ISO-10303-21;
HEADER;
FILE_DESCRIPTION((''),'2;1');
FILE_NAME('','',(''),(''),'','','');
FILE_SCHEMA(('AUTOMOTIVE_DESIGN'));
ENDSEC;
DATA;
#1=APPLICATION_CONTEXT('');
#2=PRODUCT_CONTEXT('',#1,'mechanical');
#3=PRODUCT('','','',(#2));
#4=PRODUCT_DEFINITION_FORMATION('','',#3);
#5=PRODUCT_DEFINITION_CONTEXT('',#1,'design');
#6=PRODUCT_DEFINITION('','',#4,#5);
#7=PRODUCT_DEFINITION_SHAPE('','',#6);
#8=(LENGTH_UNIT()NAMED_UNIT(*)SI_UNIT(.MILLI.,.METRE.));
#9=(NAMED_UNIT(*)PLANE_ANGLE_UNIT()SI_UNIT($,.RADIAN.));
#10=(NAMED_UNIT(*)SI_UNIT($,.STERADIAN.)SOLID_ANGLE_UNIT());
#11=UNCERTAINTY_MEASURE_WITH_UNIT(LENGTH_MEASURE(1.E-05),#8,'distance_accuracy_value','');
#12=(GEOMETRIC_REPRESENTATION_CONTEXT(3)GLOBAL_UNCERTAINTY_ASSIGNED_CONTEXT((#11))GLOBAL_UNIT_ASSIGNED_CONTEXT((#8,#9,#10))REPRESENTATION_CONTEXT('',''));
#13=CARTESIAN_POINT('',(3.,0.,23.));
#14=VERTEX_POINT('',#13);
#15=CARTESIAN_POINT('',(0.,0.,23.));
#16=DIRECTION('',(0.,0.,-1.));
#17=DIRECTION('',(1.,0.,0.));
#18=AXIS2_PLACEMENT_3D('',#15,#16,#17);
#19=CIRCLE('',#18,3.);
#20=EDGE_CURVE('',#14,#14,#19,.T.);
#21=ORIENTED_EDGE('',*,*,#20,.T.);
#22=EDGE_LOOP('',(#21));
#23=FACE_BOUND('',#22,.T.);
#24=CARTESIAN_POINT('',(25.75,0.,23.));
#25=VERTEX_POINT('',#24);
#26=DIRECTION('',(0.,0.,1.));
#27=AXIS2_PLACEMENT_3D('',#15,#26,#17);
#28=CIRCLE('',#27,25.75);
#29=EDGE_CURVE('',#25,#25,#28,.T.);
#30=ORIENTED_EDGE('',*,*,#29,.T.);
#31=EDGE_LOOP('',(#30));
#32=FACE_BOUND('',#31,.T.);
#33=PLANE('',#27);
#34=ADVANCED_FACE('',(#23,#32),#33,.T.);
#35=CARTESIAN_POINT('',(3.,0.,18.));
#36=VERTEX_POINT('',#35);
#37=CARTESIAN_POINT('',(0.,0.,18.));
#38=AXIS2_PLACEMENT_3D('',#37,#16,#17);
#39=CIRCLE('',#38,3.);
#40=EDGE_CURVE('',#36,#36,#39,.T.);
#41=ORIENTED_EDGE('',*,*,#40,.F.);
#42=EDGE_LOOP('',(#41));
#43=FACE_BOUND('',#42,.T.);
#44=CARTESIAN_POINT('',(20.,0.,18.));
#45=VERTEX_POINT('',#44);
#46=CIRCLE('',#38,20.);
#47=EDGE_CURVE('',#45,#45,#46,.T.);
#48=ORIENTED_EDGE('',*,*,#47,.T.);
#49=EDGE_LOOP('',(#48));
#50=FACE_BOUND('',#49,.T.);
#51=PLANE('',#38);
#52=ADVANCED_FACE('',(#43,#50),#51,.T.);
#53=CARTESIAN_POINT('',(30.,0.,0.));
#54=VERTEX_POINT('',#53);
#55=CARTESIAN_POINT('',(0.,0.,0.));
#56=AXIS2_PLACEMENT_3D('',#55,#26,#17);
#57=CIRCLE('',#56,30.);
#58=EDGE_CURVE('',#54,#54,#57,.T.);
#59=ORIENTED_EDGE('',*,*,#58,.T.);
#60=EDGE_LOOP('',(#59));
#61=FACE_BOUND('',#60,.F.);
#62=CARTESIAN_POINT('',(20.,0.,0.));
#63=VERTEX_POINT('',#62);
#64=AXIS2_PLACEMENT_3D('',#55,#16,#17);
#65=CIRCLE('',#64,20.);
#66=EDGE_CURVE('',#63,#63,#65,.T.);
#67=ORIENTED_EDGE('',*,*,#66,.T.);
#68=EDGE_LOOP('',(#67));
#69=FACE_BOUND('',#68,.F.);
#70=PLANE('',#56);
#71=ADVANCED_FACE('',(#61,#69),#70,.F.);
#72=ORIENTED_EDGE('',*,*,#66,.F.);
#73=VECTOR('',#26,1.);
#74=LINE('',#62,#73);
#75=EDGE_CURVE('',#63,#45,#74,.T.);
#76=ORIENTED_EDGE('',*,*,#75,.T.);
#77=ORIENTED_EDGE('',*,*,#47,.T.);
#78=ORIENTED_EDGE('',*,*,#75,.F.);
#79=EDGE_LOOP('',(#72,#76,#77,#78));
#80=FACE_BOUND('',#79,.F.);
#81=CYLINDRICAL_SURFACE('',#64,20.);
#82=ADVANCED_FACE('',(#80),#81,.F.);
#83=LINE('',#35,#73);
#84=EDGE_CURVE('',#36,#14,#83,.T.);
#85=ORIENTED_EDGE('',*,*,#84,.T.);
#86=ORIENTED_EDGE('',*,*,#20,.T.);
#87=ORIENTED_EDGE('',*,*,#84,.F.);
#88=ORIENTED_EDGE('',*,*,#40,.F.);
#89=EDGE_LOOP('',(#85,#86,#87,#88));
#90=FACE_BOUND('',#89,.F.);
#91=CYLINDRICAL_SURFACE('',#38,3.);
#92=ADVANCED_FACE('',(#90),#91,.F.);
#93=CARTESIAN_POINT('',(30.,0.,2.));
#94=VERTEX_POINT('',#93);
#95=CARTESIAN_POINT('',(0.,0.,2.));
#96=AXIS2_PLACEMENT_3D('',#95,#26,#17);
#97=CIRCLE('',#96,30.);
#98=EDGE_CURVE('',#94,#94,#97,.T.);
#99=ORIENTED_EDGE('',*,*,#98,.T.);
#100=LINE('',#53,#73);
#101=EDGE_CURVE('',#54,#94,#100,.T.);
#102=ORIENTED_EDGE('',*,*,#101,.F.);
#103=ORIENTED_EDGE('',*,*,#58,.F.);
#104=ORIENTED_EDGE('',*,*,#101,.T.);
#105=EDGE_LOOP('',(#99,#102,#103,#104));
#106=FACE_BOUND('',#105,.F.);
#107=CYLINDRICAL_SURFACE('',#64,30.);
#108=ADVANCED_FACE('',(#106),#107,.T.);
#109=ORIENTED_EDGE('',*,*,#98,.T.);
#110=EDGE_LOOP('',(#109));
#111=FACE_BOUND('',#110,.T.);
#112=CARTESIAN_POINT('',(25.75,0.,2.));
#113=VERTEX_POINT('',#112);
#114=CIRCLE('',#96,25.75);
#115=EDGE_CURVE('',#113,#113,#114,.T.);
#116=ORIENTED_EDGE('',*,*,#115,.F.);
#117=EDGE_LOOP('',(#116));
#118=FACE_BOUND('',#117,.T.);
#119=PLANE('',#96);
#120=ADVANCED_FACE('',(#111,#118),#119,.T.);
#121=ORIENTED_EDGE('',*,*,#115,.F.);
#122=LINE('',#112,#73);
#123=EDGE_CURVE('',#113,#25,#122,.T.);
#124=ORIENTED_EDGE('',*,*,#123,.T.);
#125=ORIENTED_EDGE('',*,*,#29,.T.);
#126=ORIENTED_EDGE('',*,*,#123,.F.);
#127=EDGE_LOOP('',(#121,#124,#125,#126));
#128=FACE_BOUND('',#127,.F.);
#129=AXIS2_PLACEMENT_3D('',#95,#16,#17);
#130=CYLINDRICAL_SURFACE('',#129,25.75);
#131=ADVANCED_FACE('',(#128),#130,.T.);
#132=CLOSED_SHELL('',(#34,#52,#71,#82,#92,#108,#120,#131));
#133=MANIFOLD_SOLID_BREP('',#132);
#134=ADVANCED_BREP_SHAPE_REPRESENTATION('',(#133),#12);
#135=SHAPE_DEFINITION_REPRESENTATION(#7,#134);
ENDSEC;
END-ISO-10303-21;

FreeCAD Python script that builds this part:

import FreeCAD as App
import Part
import Sketcher

V = App.Vector

doc = App.newDocument("Part")
params = doc.addObject("Spreadsheet::Sheet", "Params")
for row, (alias, value) in enumerate([
    ("sketch1_diameter", "60 mm"),
    ("pad1_length", "2 mm"),
    ("sketch2_diameter", "51.5 mm"),
    ("pad2_length", "21 mm"),
    ("sketch3_diameter", "40 mm"),
    ("pocket1_length", "18 mm"),
    ("sketch4_diameter", "6 mm"),
], start=1):
    params.set(f"A{row}", alias)
    params.set(f"B{row}", "=" + value)
    params.setAlias(f"B{row}", alias)

body = doc.addObject("PartDesign::Body", "Body")

# Sketch on XY plane
sketch1 = doc.addObject("Sketcher::SketchObject", "Sketch")
body.addObject(sketch1)
sketch1.AttachmentSupport = (doc.XY_Plane, [""])
sketch1.MapMode = "FlatFace"
sketch1.addGeometry(Part.Circle(V(0, 0, 0), V(0, 0, 1), 30), False)
sketch1.addConstraint([
    Sketcher.Constraint("Coincident", 0, 3, -1, 1),
    Sketcher.Constraint("Diameter", 0, 60.0),
])
sketch1.setExpression("Constraints[1]", "Params.sketch1_diameter")
pad1 = doc.addObject("PartDesign::Pad", "Pad")
body.addObject(pad1)
pad1.Profile = sketch1
pad1.setExpression("Length", "Params.pad1_length")

# Sketch on XY plane
sketch2 = doc.addObject("Sketcher::SketchObject", "Sketch001")
body.addObject(sketch2)
sketch2.AttachmentSupport = (doc.XY_Plane, [""])
sketch2.MapMode = "FlatFace"
sketch2.AttachmentOffset = App.Placement(V(0, 0, 2), App.Rotation())
sketch2.addGeometry(Part.Circle(V(0, 0, 0), V(0, 0, 1), 26), False)
sketch2.addConstraint([
    Sketcher.Constraint("Coincident", 0, 3, -1, 1),
    Sketcher.Constraint("Diameter", 0, 51.5),
])
sketch2.setExpression("Constraints[1]", "Params.sketch2_diameter")
pad2 = doc.addObject("PartDesign::Pad", "Pad001")
body.addObject(pad2)
pad2.Profile = sketch2
pad2.setExpression("Length", "Params.pad2_length")

# Sketch on XY plane
sketch3 = doc.addObject("Sketcher::SketchObject", "Sketch002")
body.addObject(sketch3)
sketch3.AttachmentSupport = (doc.XY_Plane, [""])
sketch3.MapMode = "FlatFace"
sketch3.addGeometry(Part.Circle(V(0, 0, 0), V(0, 0, 1), 20), False)
sketch3.addConstraint([
    Sketcher.Constraint("Coincident", 0, 3, -1, 1),
    Sketcher.Constraint("Diameter", 0, 40.0),
])
sketch3.setExpression("Constraints[1]", "Params.sketch3_diameter")
pocket1 = doc.addObject("PartDesign::Pocket", "Pocket")
body.addObject(pocket1)
pocket1.Profile = sketch3
pocket1.setExpression("Length", "Params.pocket1_length")
pocket1.Reversed = True

# Sketch on XY plane
sketch4 = doc.addObject("Sketcher::SketchObject", "Sketch003")
body.addObject(sketch4)
sketch4.AttachmentSupport = (doc.XY_Plane, [""])
sketch4.MapMode = "FlatFace"
sketch4.AttachmentOffset = App.Placement(V(0, 0, 18), App.Rotation())
sketch4.addGeometry(Part.Circle(V(0, 0, 0), V(0, 0, 1), 3), False)
sketch4.addConstraint([
    Sketcher.Constraint("Coincident", 0, 3, -1, 1),
    Sketcher.Constraint("Diameter", 0, 6.0),
])
sketch4.setExpression("Constraints[1]", "Params.sketch4_diameter")
pocket2 = doc.addObject("PartDesign::Pocket", "Pocket001")
body.addObject(pocket2)
pocket2.Profile = sketch4
pocket2.Type = "ThroughAll"
pocket2.Reversed = True

doc.recompute()
